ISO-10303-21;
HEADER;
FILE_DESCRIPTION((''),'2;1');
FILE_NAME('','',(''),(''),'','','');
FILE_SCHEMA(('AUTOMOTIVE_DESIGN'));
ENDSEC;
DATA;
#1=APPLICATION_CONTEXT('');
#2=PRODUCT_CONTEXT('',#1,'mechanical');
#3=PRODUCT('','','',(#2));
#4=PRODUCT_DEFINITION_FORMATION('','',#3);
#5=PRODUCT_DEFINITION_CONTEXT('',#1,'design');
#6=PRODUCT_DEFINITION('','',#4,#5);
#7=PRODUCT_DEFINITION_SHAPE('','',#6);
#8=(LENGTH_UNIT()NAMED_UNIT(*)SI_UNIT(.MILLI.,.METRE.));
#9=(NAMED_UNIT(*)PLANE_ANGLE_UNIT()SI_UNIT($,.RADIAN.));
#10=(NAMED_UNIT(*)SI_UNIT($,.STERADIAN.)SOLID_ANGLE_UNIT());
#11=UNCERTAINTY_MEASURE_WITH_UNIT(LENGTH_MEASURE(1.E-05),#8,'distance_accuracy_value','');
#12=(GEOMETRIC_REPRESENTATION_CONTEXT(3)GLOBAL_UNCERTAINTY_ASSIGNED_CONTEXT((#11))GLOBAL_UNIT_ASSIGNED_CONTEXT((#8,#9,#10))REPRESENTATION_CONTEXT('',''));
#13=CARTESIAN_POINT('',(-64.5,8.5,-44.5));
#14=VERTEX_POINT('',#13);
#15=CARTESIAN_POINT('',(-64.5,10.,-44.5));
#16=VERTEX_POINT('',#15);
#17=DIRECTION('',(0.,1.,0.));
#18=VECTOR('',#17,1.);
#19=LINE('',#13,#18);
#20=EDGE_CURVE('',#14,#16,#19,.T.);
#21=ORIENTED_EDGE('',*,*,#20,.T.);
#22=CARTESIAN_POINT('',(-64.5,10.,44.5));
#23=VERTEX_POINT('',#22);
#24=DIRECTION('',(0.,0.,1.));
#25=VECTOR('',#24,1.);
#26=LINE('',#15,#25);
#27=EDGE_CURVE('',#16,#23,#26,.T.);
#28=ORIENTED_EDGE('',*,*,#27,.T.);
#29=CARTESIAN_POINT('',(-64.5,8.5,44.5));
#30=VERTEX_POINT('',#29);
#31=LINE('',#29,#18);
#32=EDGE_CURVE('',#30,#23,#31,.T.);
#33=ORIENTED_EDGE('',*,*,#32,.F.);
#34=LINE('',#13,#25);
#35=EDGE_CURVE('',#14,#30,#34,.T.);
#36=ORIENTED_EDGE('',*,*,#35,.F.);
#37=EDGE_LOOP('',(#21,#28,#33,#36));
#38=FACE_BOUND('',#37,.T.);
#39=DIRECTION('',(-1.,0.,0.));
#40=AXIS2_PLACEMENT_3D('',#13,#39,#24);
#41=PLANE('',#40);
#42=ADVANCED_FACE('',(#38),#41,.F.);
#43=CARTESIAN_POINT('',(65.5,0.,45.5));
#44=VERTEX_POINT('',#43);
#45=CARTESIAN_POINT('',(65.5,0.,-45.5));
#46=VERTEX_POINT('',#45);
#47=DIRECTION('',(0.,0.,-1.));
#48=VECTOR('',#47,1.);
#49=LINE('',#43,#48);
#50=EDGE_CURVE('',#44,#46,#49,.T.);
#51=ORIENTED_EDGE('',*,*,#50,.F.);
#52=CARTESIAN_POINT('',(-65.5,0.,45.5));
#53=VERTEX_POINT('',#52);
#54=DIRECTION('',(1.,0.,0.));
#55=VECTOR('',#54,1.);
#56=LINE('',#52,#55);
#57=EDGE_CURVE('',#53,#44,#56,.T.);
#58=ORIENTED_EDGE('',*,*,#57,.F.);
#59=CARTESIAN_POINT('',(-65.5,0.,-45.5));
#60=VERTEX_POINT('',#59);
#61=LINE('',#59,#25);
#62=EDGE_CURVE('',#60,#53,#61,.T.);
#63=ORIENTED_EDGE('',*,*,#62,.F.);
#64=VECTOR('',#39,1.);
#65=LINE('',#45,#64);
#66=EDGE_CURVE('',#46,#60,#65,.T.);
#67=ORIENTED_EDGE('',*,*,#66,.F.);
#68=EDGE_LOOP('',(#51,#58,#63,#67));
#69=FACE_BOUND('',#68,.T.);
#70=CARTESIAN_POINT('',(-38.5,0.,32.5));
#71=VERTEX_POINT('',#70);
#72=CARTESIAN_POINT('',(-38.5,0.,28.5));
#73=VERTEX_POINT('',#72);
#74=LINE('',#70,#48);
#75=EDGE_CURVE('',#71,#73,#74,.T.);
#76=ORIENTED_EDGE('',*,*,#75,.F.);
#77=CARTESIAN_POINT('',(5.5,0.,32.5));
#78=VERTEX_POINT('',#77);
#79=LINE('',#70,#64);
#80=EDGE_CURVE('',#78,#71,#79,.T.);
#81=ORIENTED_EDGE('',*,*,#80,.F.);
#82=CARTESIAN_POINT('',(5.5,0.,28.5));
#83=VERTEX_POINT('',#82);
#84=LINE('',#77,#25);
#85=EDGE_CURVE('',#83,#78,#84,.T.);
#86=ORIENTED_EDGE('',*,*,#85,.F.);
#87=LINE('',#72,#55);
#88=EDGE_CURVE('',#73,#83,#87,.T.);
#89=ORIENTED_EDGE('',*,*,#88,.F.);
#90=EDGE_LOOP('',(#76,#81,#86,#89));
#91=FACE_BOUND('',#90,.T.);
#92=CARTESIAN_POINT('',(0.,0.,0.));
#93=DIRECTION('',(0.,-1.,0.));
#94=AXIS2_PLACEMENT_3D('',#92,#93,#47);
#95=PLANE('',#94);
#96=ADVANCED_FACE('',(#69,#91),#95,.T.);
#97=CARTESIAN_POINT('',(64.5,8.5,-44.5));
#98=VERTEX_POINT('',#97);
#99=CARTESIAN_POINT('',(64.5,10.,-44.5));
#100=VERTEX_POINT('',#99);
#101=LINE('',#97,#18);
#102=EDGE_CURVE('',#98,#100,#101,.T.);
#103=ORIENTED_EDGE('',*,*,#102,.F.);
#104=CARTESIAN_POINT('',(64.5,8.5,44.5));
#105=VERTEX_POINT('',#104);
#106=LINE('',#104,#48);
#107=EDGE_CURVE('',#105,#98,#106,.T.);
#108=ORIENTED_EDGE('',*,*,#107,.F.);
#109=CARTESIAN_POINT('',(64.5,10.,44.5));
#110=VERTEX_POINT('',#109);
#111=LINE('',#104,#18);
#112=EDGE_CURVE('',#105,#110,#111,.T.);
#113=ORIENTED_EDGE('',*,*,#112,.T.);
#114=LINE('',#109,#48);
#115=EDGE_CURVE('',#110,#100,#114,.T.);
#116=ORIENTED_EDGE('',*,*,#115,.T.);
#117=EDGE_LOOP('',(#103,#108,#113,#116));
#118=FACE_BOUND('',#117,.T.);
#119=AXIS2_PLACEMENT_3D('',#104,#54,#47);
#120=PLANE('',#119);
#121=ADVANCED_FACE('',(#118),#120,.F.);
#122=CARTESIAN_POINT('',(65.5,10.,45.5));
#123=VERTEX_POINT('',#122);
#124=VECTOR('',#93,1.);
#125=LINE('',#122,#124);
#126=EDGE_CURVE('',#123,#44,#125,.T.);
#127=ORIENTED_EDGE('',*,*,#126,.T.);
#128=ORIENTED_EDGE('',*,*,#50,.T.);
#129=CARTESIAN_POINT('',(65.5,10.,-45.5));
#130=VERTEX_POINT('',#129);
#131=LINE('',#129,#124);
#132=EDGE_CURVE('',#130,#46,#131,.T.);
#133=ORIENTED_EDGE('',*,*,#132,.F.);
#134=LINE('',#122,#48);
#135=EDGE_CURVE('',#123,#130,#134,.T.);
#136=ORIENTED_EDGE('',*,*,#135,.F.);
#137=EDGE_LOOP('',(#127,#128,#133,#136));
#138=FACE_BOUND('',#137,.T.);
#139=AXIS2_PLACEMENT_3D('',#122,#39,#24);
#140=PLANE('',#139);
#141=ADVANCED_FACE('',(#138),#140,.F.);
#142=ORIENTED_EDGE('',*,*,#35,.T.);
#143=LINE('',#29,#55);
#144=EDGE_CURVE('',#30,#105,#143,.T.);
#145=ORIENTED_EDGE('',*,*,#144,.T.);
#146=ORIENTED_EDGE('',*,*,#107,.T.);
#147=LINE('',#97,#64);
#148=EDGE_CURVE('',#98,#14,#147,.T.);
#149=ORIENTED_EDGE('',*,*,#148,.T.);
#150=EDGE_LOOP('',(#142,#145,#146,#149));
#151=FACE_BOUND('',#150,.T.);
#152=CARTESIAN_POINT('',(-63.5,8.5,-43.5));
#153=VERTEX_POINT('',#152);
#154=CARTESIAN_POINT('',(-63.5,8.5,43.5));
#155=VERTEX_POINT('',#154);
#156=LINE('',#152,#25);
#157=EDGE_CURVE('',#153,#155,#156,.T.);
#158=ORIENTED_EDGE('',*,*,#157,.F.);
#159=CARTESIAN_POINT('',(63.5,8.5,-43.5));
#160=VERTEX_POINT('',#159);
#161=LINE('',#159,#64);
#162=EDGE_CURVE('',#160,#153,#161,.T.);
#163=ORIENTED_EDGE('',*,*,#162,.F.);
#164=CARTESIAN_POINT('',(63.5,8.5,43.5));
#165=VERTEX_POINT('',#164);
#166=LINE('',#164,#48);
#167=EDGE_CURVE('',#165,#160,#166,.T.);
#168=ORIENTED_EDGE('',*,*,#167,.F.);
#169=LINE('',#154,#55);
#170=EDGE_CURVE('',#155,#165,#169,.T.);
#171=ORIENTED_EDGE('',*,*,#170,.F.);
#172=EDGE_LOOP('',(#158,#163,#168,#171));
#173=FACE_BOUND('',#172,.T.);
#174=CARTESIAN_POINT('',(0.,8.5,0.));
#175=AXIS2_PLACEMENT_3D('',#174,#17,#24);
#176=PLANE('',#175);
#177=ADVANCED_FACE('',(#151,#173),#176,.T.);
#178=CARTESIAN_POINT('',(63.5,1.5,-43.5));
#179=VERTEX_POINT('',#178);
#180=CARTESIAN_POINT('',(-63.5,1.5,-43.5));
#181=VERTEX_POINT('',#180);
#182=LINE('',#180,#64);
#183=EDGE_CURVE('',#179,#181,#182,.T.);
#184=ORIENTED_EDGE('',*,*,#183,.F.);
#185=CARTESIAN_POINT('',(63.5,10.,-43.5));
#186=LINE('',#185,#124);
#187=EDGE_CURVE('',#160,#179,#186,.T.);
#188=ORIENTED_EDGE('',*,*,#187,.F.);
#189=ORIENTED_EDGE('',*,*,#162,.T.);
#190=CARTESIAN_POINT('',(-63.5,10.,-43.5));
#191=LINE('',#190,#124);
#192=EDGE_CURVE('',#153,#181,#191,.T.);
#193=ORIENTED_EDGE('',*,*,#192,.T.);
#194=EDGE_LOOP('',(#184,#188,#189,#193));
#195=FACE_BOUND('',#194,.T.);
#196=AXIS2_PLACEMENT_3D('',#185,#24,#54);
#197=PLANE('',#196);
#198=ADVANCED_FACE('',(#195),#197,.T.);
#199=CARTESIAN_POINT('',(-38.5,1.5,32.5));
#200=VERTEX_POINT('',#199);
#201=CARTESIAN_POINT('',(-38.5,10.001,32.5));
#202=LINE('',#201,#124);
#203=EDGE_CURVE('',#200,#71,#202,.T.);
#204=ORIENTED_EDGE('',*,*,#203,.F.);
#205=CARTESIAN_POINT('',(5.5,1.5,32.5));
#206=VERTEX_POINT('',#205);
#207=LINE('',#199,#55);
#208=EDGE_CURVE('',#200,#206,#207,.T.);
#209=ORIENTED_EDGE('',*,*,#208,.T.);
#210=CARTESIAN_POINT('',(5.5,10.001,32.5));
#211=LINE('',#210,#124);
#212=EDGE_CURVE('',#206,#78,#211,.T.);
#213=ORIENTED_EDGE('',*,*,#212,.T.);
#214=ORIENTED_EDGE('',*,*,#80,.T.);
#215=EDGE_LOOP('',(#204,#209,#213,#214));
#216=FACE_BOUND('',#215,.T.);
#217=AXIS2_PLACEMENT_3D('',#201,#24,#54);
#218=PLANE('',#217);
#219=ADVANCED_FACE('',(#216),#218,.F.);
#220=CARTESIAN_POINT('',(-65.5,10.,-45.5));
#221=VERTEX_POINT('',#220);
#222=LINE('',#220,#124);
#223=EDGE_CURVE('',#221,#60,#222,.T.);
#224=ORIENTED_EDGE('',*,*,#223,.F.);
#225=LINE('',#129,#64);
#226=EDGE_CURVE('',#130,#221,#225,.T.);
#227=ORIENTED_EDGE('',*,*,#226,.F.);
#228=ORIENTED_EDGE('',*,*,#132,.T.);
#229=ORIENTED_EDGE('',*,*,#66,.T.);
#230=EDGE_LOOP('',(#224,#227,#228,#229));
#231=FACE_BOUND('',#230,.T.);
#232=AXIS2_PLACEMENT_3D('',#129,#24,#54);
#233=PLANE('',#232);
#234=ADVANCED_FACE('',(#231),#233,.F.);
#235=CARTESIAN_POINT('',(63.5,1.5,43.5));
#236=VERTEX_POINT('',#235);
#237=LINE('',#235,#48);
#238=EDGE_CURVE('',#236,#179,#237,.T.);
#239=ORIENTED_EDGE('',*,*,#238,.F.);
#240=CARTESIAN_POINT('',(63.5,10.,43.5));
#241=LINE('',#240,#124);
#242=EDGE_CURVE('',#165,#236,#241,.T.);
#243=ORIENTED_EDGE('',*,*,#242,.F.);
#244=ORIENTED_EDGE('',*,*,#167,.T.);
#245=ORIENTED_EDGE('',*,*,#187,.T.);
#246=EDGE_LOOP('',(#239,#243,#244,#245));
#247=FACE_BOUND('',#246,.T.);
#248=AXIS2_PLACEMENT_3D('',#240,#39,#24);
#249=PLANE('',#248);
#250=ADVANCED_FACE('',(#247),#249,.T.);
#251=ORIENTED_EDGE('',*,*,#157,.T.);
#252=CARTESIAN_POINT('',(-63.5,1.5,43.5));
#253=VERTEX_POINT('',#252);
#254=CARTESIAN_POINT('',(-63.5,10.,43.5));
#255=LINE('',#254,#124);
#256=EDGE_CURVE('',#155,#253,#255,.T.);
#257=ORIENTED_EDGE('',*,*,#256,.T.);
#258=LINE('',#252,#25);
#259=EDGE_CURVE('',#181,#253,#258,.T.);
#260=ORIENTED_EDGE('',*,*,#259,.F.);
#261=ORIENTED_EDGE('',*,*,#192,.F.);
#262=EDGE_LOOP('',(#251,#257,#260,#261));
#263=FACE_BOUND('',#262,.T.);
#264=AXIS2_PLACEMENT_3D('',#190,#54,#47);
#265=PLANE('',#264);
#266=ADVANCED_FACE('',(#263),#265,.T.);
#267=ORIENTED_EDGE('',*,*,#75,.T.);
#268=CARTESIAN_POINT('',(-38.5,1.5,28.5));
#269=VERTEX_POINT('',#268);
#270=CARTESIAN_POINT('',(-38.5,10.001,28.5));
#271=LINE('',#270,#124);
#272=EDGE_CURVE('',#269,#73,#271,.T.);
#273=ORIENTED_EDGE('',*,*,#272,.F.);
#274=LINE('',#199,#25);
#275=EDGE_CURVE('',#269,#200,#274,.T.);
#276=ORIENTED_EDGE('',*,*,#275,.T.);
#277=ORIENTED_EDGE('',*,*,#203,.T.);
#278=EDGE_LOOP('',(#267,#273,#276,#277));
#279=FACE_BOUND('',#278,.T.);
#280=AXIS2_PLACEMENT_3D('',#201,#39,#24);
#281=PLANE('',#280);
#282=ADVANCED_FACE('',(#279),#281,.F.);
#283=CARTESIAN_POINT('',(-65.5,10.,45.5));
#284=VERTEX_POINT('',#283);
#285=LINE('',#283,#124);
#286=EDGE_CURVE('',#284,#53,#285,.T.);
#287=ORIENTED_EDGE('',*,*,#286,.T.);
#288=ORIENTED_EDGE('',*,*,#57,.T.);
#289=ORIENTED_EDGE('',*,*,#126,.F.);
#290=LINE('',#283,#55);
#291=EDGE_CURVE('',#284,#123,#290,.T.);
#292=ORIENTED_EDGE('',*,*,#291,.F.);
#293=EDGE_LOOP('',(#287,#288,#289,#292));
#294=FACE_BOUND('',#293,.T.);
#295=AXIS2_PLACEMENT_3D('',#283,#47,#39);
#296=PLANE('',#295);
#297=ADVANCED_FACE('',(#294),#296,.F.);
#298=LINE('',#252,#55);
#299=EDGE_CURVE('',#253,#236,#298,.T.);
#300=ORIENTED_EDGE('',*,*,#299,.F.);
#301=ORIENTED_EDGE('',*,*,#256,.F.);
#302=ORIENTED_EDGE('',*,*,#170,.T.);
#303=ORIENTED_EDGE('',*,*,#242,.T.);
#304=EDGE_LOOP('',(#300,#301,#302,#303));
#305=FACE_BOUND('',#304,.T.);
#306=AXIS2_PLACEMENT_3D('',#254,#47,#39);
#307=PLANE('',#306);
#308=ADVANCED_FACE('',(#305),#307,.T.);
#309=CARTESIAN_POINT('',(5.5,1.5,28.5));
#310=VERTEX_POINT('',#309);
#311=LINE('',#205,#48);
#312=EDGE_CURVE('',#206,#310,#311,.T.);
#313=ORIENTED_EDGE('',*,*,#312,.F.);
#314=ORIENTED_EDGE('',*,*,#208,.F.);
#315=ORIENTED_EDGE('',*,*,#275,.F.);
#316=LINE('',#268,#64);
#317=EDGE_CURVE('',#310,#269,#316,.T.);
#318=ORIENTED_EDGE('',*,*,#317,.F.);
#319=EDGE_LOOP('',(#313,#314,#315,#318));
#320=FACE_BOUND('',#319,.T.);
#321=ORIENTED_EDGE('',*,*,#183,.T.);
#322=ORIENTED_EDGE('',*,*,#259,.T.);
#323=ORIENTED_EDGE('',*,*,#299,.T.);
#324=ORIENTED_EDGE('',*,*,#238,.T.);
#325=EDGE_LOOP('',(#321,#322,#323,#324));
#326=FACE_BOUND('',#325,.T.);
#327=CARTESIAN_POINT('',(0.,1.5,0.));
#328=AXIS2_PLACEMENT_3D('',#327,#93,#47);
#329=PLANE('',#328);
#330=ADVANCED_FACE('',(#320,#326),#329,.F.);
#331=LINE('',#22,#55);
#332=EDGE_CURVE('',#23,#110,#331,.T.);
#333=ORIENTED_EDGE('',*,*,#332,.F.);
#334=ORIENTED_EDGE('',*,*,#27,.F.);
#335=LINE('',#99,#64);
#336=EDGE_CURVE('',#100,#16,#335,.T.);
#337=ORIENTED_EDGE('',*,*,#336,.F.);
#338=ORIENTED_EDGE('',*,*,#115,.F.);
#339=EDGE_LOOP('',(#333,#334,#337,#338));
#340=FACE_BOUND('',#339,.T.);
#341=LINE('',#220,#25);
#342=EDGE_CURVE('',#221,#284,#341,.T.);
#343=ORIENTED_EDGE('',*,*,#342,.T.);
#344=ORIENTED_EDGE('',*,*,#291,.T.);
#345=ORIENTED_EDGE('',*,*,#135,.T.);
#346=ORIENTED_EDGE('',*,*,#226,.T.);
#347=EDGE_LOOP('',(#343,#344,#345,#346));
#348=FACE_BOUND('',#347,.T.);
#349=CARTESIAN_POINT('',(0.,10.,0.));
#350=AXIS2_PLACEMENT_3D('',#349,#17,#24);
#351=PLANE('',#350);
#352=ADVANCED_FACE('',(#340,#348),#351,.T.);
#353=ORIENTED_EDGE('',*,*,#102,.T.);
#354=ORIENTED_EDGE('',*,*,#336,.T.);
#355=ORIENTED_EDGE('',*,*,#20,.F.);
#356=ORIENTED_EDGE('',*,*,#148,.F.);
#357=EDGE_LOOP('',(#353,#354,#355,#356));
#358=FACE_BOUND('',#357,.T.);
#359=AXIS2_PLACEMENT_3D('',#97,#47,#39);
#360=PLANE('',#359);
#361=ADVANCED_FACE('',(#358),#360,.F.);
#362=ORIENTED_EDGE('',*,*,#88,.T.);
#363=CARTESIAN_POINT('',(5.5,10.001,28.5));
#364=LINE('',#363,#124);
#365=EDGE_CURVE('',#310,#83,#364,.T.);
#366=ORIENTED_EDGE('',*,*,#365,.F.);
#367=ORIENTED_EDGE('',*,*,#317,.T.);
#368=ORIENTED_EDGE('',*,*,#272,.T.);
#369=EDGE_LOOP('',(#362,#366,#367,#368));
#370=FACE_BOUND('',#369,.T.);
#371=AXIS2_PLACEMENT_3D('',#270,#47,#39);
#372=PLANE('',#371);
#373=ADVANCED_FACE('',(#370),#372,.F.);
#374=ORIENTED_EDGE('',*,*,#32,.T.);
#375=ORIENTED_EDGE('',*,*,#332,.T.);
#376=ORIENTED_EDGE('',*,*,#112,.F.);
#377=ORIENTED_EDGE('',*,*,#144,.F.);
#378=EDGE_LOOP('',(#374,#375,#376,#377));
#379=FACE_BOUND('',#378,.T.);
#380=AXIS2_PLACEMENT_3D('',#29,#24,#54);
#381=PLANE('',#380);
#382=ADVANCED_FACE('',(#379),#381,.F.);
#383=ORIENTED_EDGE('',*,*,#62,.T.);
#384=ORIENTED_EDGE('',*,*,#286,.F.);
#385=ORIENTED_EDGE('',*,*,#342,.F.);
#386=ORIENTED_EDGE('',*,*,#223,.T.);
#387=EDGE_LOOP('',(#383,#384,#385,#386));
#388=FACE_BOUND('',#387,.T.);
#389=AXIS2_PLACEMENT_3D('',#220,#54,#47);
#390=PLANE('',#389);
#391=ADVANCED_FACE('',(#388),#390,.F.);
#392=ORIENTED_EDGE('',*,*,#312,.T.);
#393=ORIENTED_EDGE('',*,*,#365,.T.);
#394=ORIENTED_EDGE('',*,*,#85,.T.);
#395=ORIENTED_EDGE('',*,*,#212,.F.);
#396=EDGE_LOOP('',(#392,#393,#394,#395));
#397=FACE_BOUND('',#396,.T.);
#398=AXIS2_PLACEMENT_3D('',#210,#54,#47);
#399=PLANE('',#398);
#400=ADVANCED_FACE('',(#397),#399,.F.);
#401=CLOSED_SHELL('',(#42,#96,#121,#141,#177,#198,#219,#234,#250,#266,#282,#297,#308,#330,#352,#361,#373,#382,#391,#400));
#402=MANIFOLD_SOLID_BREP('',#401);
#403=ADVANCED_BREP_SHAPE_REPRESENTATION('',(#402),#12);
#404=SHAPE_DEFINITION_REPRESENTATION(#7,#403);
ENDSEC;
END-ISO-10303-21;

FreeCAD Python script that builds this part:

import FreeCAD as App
import Part
import Sketcher
from FreeCAD import Vector

doc = App.newDocument("Part")
body = doc.addObject("PartDesign::Body", "Body")

# Sketch on XZ plane
sketch1 = body.newObject("Sketcher::SketchObject", "Sketch")
sketch1.AttachmentSupport = (doc.getObject("XZ_Plane"), [""])
sketch1.MapMode = "FlatFace"
sketch1.addGeometry([
    Part.LineSegment(Vector(-63.5, -43.5, 0), Vector(-63.5, 43.5, 0)),
    Part.LineSegment(Vector(-63.5, 43.5, 0), Vector(63.5, 43.5, 0)),
    Part.LineSegment(Vector(63.5, 43.5, 0), Vector(63.5, -43.5, 0)),
    Part.LineSegment(Vector(63.5, -43.5, 0), Vector(-63.5, -43.5, 0)),
], False)
sketch1.addConstraint([
    Sketcher.Constraint("Coincident", 0, 2, 1, 1),
    Sketcher.Constraint("Coincident", 1, 2, 2, 1),
    Sketcher.Constraint("Coincident", 2, 2, 3, 1),
    Sketcher.Constraint("Coincident", 3, 2, 0, 1),
    Sketcher.Constraint("Vertical", 0),
    Sketcher.Constraint("Horizontal", 1),
    Sketcher.Constraint("Vertical", 2),
    Sketcher.Constraint("Horizontal", 3),
    Sketcher.Constraint("Symmetric", 0, 2, 2, 2, -1, 1),
    Sketcher.Constraint("DistanceX", 1, 1, 1, 2, 127.0),
    Sketcher.Constraint("DistanceY", 0, 1, 0, 2, 87.0),
])
pad1 = body.newObject("PartDesign::Pad", "Pad")
pad1.Profile = sketch1
pad1.Length = 1.5
pad1.Reversed = True

# Sketch on XZ plane
sketch2 = body.newObject("Sketcher::SketchObject", "Sketch001")
sketch2.AttachmentSupport = (doc.getObject("XZ_Plane"), [""])
sketch2.MapMode = "FlatFace"
sketch2.addGeometry([
    Part.LineSegment(Vector(-65.5, -45.5, 0), Vector(-65.5, 45.5, 0)),  # 0
    Part.LineSegment(Vector(-65.5, 45.5, 0), Vector(65.5, 45.5, 0)),  # 1
    Part.LineSegment(Vector(65.5, 45.5, 0), Vector(65.5, -45.5, 0)),  # 2
    Part.LineSegment(Vector(65.5, -45.5, 0), Vector(-65.5, -45.5, 0)),  # 3
    Part.LineSegment(Vector(63.5, 43.5, 0), Vector(-63.5, 43.5, 0)),  # 4
    Part.LineSegment(Vector(-63.5, 43.5, 0), Vector(-63.5, -43.5, 0)),  # 5
    Part.LineSegment(Vector(-63.5, -43.5, 0), Vector(63.5, -43.5, 0)),  # 6
    Part.LineSegment(Vector(63.5, -43.5, 0), Vector(63.5, 43.5, 0)),  # 7
], False)
sketch2.addConstraint([
    Sketcher.Constraint("Coincident", 0, 2, 1, 1),
    Sketcher.Constraint("Coincident", 1, 2, 2, 1),
    Sketcher.Constraint("Coincident", 2, 2, 3, 1),
    Sketcher.Constraint("Coincident", 3, 2, 0, 1),
    Sketcher.Constraint("Coincident", 4, 2, 5, 1),
    Sketcher.Constraint("Coincident", 5, 2, 6, 1),
    Sketcher.Constraint("Coincident", 6, 2, 7, 1),
    Sketcher.Constraint("Coincident", 7, 2, 4, 1),
    Sketcher.Constraint("Vertical", 0),
    Sketcher.Constraint("Horizontal", 1),
    Sketcher.Constraint("Vertical", 2),
    Sketcher.Constraint("Horizontal", 3),
    Sketcher.Constraint("Horizontal", 4),
    Sketcher.Constraint("Vertical", 5),
    Sketcher.Constraint("Horizontal", 6),
    Sketcher.Constraint("Vertical", 7),
    Sketcher.Constraint("Symmetric", 0, 2, 2, 2, -1, 1),
    Sketcher.Constraint("Symmetric", 4, 2, 6, 2, -1, 1),
    Sketcher.Constraint("DistanceX", 1, 1, 1, 2, 131.0),
    Sketcher.Constraint("DistanceX", 4, 2, 4, 1, 127.0),
    Sketcher.Constraint("DistanceY", 0, 1, 0, 2, 91.0),
    Sketcher.Constraint("DistanceY", 5, 2, 5, 1, 87.0),
])
pad2 = body.newObject("PartDesign::Pad", "Pad001")
pad2.Profile = sketch2
pad2.Length = 10
pad2.Reversed = True

# Sketch on XZ plane
sketch3 = body.newObject("Sketcher::SketchObject", "Sketch002")
sketch3.AttachmentSupport = (doc.getObject("XZ_Plane"), [""])
sketch3.MapMode = "FlatFace"
sketch3.addGeometry([
    Part.LineSegment(Vector(-38.5, 32.5, 0), Vector(-38.5, 28.5, 0)),
    Part.LineSegment(Vector(-38.5, 28.5, 0), Vector(5.5, 28.5, 0)),
    Part.LineSegment(Vector(5.5, 28.5, 0), Vector(5.5, 32.5, 0)),
    Part.LineSegment(Vector(5.5, 32.5, 0), Vector(-38.5, 32.5, 0)),
], False)
sketch3.addConstraint([
    Sketcher.Constraint("Coincident", 0, 2, 1, 1),
    Sketcher.Constraint("Coincident", 1, 2, 2, 1),
    Sketcher.Constraint("Coincident", 2, 2, 3, 1),
    Sketcher.Constraint("Coincident", 3, 2, 0, 1),
    Sketcher.Constraint("Vertical", 0),
    Sketcher.Constraint("Horizontal", 1),
    Sketcher.Constraint("Vertical", 2),
    Sketcher.Constraint("Horizontal", 3),
    Sketcher.Constraint("DistanceX", 1, 1, 1, 2, 44.0),
    Sketcher.Constraint("DistanceY", 0, 2, 0, 1, 4.0),
    Sketcher.Constraint("DistanceX", 0, 2, -1, 1, 38.5),
    Sketcher.Constraint("DistanceY", -1, 1, 0, 2, 28.5),
])
pocket1 = body.newObject("PartDesign::Pocket", "Pocket")
pocket1.Profile = sketch3
pocket1.Type = "UpToFirst"

# Sketch on XZ plane
sketch4 = body.newObject("Sketcher::SketchObject", "Sketch003")
sketch4.AttachmentSupport = (doc.getObject("XZ_Plane"), [""])
sketch4.MapMode = "FlatFace"
sketch4.AttachmentOffset = App.Placement(Vector(0, 0, -10), App.Rotation())
sketch4.addGeometry([
    Part.LineSegment(Vector(-64.5, -44.5, 0), Vector(-64.5, 44.5, 0)),  # 0
    Part.LineSegment(Vector(-64.5, 44.5, 0), Vector(64.5, 44.5, 0)),  # 1
    Part.LineSegment(Vector(64.5, 44.5, 0), Vector(64.5, -44.5, 0)),  # 2
    Part.LineSegment(Vector(64.5, -44.5, 0), Vector(-64.5, -44.5, 0)),  # 3
    Part.LineSegment(Vector(63.5, 43.5, 0), Vector(-63.5, 43.5, 0)),  # 4
    Part.LineSegment(Vector(-63.5, 43.5, 0), Vector(-63.5, -43.5, 0)),  # 5
    Part.LineSegment(Vector(-63.5, -43.5, 0), Vector(63.5, -43.5, 0)),  # 6
    Part.LineSegment(Vector(63.5, -43.5, 0), Vector(63.5, 43.5, 0)),  # 7
], False)
sketch4.addConstraint([
    Sketcher.Constraint("Coincident", 0, 2, 1, 1),
    Sketcher.Constraint("Coincident", 1, 2, 2, 1),
    Sketcher.Constraint("Coincident", 2, 2, 3, 1),
    Sketcher.Constraint("Coincident", 3, 2, 0, 1),
    Sketcher.Constraint("Coincident", 4, 2, 5, 1),
    Sketcher.Constraint("Coincident", 5, 2, 6, 1),
    Sketcher.Constraint("Coincident", 6, 2, 7, 1),
    Sketcher.Constraint("Coincident", 7, 2, 4, 1),
    Sketcher.Constraint("Vertical", 0),
    Sketcher.Constraint("Horizontal", 1),
    Sketcher.Constraint("Vertical", 2),
    Sketcher.Constraint("Horizontal", 3),
    Sketcher.Constraint("Horizontal", 4),
    Sketcher.Constraint("Vertical", 5),
    Sketcher.Constraint("Horizontal", 6),
    Sketcher.Constraint("Vertical", 7),
    Sketcher.Constraint("Symmetric", 0, 2, 2, 2, -1, 1),
    Sketcher.Constraint("Symmetric", 4, 2, 6, 2, -1, 1),
    Sketcher.Constraint("DistanceX", 1, 1, 1, 2, 129.0),
    Sketcher.Constraint("DistanceX", 4, 2, 4, 1, 127.0),
    Sketcher.Constraint("DistanceY", 0, 1, 0, 2, 89.0),
    Sketcher.Constraint("DistanceY", 5, 2, 5, 1, 87.0),
])
pocket2 = body.newObject("PartDesign::Pocket", "Pocket001")
pocket2.Profile = sketch4
pocket2.Length = 1.5
pocket2.Reversed = True

doc.recompute()
